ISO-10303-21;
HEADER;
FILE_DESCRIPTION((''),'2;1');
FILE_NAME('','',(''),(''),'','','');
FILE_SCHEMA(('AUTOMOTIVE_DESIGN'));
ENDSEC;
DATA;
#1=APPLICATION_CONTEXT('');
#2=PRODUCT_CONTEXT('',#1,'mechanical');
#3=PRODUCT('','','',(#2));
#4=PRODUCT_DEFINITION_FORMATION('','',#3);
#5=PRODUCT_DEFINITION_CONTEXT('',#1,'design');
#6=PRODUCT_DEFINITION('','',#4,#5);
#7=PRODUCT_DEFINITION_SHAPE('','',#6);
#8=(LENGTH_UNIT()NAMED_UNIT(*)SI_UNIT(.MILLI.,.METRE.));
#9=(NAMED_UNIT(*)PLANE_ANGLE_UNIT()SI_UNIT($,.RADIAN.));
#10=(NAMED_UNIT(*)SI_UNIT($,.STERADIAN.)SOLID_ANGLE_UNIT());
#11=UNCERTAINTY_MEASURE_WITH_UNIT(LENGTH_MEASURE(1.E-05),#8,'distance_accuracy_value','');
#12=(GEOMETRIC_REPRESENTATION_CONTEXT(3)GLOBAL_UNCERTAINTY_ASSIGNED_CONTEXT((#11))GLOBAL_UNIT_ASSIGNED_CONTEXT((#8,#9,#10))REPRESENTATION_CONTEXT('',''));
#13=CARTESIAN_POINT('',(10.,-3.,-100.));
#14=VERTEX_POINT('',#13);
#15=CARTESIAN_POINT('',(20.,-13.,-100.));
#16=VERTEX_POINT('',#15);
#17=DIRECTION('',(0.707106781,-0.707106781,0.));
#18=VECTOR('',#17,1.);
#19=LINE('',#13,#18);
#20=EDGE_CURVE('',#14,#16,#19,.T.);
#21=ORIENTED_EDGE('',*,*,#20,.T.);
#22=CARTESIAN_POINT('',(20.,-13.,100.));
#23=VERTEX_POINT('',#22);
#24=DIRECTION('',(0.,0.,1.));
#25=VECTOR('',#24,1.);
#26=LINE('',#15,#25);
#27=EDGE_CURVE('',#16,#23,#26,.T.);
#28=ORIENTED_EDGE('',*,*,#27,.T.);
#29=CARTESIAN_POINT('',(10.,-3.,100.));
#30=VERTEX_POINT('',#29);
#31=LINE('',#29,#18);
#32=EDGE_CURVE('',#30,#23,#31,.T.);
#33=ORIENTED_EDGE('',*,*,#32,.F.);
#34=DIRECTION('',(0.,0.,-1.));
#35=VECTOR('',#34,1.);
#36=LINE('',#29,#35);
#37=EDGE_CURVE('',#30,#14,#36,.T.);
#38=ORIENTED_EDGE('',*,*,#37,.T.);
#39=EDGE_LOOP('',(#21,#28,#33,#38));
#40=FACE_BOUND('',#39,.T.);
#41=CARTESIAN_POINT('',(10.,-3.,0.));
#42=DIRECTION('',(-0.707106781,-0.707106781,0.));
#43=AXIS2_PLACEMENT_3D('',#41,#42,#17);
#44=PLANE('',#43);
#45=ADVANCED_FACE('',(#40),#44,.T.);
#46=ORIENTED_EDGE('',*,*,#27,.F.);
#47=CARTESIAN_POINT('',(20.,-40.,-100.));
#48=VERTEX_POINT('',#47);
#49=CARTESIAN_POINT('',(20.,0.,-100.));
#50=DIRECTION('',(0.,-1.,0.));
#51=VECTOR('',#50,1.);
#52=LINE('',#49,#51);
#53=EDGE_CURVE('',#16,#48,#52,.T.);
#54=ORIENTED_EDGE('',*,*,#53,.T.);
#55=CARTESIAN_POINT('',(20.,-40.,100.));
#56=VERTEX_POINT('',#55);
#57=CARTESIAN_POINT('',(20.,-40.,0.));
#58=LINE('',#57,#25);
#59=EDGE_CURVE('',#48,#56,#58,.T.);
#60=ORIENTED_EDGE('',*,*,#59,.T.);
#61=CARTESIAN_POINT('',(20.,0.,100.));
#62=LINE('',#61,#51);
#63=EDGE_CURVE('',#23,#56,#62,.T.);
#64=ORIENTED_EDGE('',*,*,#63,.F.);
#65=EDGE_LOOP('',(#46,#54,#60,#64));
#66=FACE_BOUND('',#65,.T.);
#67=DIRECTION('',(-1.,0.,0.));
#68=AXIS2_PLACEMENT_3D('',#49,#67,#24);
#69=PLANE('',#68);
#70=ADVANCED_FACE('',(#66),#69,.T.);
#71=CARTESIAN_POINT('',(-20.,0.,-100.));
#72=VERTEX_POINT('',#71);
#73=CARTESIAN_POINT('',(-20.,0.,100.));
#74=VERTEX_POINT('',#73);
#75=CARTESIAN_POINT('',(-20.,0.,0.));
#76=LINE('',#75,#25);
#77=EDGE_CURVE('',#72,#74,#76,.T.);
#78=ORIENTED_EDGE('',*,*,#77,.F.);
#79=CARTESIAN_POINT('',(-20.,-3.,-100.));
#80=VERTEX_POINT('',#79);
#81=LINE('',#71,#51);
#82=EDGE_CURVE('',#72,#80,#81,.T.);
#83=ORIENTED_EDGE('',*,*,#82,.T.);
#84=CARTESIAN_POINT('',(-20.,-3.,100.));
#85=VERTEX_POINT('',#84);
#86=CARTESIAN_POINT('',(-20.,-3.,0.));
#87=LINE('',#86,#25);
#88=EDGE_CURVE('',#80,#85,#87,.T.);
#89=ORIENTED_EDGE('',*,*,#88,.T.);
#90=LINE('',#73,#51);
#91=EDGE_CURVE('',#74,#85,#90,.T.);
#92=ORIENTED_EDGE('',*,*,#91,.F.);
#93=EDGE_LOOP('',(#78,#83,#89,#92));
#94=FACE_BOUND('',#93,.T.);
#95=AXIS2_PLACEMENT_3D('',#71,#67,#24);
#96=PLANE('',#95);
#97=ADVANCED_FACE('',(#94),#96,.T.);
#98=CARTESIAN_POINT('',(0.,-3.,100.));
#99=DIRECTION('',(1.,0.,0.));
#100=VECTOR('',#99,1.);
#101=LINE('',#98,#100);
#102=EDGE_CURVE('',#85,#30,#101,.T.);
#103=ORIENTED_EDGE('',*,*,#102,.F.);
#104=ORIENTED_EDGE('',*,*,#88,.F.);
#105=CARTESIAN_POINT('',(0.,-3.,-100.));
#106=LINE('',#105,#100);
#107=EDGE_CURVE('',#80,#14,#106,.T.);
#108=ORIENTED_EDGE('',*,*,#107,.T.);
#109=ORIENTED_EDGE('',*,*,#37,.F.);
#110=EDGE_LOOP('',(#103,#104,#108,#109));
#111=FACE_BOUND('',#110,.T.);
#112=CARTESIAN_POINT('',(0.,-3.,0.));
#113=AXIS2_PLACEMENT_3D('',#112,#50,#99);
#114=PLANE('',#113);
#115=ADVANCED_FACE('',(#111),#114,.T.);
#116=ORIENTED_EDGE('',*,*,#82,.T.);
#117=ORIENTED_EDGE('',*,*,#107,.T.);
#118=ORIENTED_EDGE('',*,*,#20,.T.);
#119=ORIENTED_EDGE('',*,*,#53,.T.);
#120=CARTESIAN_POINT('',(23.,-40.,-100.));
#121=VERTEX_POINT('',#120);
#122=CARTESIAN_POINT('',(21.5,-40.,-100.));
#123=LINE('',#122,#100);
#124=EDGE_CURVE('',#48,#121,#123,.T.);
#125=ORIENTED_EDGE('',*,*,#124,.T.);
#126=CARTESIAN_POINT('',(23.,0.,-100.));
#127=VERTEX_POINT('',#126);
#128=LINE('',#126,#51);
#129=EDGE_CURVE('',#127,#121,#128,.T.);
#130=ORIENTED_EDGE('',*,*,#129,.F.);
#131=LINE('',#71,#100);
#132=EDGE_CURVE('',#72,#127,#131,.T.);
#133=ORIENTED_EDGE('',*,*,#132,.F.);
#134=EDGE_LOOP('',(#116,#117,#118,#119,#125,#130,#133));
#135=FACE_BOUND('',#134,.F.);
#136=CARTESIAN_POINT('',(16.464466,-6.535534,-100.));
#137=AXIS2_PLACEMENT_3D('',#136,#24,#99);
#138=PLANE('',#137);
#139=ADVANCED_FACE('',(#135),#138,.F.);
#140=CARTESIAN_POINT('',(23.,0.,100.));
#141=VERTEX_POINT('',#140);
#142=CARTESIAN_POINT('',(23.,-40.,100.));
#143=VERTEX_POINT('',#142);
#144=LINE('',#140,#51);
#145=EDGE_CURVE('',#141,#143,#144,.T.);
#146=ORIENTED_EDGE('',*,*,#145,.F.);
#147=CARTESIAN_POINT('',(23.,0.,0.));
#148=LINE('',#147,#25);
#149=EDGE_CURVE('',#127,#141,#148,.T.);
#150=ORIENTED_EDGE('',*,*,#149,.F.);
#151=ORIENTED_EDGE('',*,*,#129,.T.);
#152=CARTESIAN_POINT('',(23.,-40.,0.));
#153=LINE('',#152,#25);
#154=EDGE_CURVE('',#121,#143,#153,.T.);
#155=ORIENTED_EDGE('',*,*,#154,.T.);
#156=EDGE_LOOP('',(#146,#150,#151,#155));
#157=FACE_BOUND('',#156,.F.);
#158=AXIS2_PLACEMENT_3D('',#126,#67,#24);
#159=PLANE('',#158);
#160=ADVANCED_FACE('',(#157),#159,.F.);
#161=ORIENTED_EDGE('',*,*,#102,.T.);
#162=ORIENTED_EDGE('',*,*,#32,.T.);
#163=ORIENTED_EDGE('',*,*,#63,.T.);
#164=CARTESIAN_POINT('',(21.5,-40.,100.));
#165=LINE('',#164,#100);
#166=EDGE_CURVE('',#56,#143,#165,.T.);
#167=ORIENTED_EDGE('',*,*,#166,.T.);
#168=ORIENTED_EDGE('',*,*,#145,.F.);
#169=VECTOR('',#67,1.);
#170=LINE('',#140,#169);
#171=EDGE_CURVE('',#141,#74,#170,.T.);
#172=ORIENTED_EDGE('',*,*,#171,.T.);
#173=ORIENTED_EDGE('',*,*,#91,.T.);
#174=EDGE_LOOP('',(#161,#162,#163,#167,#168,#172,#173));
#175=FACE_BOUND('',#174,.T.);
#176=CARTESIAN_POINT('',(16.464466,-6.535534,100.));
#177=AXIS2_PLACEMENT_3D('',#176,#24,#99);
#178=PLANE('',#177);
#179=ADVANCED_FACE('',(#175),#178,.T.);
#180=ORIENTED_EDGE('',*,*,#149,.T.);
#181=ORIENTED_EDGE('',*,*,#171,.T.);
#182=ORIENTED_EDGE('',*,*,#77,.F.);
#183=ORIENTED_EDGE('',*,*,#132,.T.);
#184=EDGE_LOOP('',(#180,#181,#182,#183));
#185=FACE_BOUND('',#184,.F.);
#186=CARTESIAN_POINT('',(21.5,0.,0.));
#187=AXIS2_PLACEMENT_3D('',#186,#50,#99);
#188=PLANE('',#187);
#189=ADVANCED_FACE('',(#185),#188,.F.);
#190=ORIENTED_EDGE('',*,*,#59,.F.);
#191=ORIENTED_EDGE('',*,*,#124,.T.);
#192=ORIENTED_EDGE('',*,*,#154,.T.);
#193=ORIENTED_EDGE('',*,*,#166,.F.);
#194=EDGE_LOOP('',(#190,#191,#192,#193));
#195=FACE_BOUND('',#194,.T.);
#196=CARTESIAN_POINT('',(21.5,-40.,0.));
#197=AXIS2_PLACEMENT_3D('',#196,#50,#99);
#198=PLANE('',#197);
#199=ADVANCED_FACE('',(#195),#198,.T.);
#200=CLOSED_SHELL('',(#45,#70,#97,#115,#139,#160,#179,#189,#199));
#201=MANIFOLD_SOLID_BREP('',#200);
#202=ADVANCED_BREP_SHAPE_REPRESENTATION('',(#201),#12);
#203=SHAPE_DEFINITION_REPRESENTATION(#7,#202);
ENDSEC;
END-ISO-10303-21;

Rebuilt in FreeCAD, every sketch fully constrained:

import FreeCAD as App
import Part
import Sketcher
Q = App.Units.Quantity


def add_polygon(sketch, points):
    """Adds a closed chain of lines whose ends are joined by coincident constraints."""
    first, n = sketch.GeometryCount, len(points)
    for a, b in zip(points, points[1:] + points[:1]):
        sketch.addGeometry(Part.LineSegment(App.Vector(*a, 0), App.Vector(*b, 0)), False)
    for i in range(n):
        sketch.addConstraint(Sketcher.Constraint("Coincident", first + i, 2, first + (i + 1) % n, 1))

doc = App.newDocument("Part")
body = doc.addObject("PartDesign::Body", "Body")

# Sketch on XZ plane
sketch1 = doc.addObject("Sketcher::SketchObject", "Sketch")
body.addObject(sketch1)
sketch1.AttachmentSupport = (doc.XZ_Plane, [""])
sketch1.MapMode = "FlatFace"
add_polygon(sketch1, [(-20, 100), (-20, -100), (20, -100), (20, 100)])  # lines 0-3
sketch1.addConstraint(Sketcher.Constraint("Vertical", 0))
sketch1.addConstraint(Sketcher.Constraint("Horizontal", 1))
sketch1.addConstraint(Sketcher.Constraint("Vertical", 2))
sketch1.addConstraint(Sketcher.Constraint("Horizontal", 3))
sketch1.addConstraint(Sketcher.Constraint("Symmetric", 0, 2, 2, 2, -1, 1))
sketch1.addConstraint(Sketcher.Constraint("DistanceX", 1, 1, 1, 2, Q("40 mm")))
sketch1.addConstraint(Sketcher.Constraint("DistanceY", 0, 2, 0, 1, Q("200 mm")))
pad1 = doc.addObject("PartDesign::Pad", "Pad")
body.addObject(pad1)
pad1.Profile = sketch1
pad1.Length = 3

# Sketch on XZ plane
sketch2 = doc.addObject("Sketcher::SketchObject", "Sketch001")
body.addObject(sketch2)
sketch2.AttachmentSupport = (doc.XZ_Plane, [""])
sketch2.MapMode = "FlatFace"
add_polygon(sketch2, [(20, 100), (20, -100), (23, -100), (23, 100)])  # lines 0-3
sketch2.addConstraint(Sketcher.Constraint("Vertical", 0))
sketch2.addConstraint(Sketcher.Constraint("Horizontal", 1))
sketch2.addConstraint(Sketcher.Constraint("Vertical", 2))
sketch2.addConstraint(Sketcher.Constraint("Horizontal", 3))
sketch2.addConstraint(Sketcher.Constraint("DistanceX", 1, 1, 1, 2, Q("3 mm")))
sketch2.addConstraint(Sketcher.Constraint("DistanceY", 0, 2, 0, 1, Q("200 mm")))
sketch2.addConstraint(Sketcher.Constraint("DistanceX", -1, 1, 0, 2, Q("20 mm")))
sketch2.addConstraint(Sketcher.Constraint("DistanceY", 0, 2, -1, 1, Q("100 mm")))
pad2 = doc.addObject("PartDesign::Pad", "Pad001")
body.addObject(pad2)
pad2.Profile = sketch2
pad2.Length = 40

# Sketch on XY plane
sketch3 = doc.addObject("Sketcher::SketchObject", "Sketch002")
body.addObject(sketch3)
sketch3.AttachmentSupport = (doc.XY_Plane, [""])
sketch3.MapMode = "FlatFace"
add_polygon(sketch3, [(10, -3), (20, -13), (20, -3)])  # lines 0-2
sketch3.addConstraint(Sketcher.Constraint("Vertical", 1))
sketch3.addConstraint(Sketcher.Constraint("Horizontal", 2))
sketch3.addConstraint(Sketcher.Constraint("Equal", 2, 1))
sketch3.addConstraint(Sketcher.Constraint("DistanceX", 2, 2, 2, 1, Q("10 mm")))
sketch3.addConstraint(Sketcher.Constraint("DistanceX", -1, 1, 0, 2, Q("20 mm")))
sketch3.addConstraint(Sketcher.Constraint("DistanceY", 0, 2, -1, 1, Q("13 mm")))
pad3 = doc.addObject("PartDesign::Pad", "Pad002")
body.addObject(pad3)
pad3.Profile = sketch3
pad3.Length = 200
pad3.Midplane = True

doc.recompute()
